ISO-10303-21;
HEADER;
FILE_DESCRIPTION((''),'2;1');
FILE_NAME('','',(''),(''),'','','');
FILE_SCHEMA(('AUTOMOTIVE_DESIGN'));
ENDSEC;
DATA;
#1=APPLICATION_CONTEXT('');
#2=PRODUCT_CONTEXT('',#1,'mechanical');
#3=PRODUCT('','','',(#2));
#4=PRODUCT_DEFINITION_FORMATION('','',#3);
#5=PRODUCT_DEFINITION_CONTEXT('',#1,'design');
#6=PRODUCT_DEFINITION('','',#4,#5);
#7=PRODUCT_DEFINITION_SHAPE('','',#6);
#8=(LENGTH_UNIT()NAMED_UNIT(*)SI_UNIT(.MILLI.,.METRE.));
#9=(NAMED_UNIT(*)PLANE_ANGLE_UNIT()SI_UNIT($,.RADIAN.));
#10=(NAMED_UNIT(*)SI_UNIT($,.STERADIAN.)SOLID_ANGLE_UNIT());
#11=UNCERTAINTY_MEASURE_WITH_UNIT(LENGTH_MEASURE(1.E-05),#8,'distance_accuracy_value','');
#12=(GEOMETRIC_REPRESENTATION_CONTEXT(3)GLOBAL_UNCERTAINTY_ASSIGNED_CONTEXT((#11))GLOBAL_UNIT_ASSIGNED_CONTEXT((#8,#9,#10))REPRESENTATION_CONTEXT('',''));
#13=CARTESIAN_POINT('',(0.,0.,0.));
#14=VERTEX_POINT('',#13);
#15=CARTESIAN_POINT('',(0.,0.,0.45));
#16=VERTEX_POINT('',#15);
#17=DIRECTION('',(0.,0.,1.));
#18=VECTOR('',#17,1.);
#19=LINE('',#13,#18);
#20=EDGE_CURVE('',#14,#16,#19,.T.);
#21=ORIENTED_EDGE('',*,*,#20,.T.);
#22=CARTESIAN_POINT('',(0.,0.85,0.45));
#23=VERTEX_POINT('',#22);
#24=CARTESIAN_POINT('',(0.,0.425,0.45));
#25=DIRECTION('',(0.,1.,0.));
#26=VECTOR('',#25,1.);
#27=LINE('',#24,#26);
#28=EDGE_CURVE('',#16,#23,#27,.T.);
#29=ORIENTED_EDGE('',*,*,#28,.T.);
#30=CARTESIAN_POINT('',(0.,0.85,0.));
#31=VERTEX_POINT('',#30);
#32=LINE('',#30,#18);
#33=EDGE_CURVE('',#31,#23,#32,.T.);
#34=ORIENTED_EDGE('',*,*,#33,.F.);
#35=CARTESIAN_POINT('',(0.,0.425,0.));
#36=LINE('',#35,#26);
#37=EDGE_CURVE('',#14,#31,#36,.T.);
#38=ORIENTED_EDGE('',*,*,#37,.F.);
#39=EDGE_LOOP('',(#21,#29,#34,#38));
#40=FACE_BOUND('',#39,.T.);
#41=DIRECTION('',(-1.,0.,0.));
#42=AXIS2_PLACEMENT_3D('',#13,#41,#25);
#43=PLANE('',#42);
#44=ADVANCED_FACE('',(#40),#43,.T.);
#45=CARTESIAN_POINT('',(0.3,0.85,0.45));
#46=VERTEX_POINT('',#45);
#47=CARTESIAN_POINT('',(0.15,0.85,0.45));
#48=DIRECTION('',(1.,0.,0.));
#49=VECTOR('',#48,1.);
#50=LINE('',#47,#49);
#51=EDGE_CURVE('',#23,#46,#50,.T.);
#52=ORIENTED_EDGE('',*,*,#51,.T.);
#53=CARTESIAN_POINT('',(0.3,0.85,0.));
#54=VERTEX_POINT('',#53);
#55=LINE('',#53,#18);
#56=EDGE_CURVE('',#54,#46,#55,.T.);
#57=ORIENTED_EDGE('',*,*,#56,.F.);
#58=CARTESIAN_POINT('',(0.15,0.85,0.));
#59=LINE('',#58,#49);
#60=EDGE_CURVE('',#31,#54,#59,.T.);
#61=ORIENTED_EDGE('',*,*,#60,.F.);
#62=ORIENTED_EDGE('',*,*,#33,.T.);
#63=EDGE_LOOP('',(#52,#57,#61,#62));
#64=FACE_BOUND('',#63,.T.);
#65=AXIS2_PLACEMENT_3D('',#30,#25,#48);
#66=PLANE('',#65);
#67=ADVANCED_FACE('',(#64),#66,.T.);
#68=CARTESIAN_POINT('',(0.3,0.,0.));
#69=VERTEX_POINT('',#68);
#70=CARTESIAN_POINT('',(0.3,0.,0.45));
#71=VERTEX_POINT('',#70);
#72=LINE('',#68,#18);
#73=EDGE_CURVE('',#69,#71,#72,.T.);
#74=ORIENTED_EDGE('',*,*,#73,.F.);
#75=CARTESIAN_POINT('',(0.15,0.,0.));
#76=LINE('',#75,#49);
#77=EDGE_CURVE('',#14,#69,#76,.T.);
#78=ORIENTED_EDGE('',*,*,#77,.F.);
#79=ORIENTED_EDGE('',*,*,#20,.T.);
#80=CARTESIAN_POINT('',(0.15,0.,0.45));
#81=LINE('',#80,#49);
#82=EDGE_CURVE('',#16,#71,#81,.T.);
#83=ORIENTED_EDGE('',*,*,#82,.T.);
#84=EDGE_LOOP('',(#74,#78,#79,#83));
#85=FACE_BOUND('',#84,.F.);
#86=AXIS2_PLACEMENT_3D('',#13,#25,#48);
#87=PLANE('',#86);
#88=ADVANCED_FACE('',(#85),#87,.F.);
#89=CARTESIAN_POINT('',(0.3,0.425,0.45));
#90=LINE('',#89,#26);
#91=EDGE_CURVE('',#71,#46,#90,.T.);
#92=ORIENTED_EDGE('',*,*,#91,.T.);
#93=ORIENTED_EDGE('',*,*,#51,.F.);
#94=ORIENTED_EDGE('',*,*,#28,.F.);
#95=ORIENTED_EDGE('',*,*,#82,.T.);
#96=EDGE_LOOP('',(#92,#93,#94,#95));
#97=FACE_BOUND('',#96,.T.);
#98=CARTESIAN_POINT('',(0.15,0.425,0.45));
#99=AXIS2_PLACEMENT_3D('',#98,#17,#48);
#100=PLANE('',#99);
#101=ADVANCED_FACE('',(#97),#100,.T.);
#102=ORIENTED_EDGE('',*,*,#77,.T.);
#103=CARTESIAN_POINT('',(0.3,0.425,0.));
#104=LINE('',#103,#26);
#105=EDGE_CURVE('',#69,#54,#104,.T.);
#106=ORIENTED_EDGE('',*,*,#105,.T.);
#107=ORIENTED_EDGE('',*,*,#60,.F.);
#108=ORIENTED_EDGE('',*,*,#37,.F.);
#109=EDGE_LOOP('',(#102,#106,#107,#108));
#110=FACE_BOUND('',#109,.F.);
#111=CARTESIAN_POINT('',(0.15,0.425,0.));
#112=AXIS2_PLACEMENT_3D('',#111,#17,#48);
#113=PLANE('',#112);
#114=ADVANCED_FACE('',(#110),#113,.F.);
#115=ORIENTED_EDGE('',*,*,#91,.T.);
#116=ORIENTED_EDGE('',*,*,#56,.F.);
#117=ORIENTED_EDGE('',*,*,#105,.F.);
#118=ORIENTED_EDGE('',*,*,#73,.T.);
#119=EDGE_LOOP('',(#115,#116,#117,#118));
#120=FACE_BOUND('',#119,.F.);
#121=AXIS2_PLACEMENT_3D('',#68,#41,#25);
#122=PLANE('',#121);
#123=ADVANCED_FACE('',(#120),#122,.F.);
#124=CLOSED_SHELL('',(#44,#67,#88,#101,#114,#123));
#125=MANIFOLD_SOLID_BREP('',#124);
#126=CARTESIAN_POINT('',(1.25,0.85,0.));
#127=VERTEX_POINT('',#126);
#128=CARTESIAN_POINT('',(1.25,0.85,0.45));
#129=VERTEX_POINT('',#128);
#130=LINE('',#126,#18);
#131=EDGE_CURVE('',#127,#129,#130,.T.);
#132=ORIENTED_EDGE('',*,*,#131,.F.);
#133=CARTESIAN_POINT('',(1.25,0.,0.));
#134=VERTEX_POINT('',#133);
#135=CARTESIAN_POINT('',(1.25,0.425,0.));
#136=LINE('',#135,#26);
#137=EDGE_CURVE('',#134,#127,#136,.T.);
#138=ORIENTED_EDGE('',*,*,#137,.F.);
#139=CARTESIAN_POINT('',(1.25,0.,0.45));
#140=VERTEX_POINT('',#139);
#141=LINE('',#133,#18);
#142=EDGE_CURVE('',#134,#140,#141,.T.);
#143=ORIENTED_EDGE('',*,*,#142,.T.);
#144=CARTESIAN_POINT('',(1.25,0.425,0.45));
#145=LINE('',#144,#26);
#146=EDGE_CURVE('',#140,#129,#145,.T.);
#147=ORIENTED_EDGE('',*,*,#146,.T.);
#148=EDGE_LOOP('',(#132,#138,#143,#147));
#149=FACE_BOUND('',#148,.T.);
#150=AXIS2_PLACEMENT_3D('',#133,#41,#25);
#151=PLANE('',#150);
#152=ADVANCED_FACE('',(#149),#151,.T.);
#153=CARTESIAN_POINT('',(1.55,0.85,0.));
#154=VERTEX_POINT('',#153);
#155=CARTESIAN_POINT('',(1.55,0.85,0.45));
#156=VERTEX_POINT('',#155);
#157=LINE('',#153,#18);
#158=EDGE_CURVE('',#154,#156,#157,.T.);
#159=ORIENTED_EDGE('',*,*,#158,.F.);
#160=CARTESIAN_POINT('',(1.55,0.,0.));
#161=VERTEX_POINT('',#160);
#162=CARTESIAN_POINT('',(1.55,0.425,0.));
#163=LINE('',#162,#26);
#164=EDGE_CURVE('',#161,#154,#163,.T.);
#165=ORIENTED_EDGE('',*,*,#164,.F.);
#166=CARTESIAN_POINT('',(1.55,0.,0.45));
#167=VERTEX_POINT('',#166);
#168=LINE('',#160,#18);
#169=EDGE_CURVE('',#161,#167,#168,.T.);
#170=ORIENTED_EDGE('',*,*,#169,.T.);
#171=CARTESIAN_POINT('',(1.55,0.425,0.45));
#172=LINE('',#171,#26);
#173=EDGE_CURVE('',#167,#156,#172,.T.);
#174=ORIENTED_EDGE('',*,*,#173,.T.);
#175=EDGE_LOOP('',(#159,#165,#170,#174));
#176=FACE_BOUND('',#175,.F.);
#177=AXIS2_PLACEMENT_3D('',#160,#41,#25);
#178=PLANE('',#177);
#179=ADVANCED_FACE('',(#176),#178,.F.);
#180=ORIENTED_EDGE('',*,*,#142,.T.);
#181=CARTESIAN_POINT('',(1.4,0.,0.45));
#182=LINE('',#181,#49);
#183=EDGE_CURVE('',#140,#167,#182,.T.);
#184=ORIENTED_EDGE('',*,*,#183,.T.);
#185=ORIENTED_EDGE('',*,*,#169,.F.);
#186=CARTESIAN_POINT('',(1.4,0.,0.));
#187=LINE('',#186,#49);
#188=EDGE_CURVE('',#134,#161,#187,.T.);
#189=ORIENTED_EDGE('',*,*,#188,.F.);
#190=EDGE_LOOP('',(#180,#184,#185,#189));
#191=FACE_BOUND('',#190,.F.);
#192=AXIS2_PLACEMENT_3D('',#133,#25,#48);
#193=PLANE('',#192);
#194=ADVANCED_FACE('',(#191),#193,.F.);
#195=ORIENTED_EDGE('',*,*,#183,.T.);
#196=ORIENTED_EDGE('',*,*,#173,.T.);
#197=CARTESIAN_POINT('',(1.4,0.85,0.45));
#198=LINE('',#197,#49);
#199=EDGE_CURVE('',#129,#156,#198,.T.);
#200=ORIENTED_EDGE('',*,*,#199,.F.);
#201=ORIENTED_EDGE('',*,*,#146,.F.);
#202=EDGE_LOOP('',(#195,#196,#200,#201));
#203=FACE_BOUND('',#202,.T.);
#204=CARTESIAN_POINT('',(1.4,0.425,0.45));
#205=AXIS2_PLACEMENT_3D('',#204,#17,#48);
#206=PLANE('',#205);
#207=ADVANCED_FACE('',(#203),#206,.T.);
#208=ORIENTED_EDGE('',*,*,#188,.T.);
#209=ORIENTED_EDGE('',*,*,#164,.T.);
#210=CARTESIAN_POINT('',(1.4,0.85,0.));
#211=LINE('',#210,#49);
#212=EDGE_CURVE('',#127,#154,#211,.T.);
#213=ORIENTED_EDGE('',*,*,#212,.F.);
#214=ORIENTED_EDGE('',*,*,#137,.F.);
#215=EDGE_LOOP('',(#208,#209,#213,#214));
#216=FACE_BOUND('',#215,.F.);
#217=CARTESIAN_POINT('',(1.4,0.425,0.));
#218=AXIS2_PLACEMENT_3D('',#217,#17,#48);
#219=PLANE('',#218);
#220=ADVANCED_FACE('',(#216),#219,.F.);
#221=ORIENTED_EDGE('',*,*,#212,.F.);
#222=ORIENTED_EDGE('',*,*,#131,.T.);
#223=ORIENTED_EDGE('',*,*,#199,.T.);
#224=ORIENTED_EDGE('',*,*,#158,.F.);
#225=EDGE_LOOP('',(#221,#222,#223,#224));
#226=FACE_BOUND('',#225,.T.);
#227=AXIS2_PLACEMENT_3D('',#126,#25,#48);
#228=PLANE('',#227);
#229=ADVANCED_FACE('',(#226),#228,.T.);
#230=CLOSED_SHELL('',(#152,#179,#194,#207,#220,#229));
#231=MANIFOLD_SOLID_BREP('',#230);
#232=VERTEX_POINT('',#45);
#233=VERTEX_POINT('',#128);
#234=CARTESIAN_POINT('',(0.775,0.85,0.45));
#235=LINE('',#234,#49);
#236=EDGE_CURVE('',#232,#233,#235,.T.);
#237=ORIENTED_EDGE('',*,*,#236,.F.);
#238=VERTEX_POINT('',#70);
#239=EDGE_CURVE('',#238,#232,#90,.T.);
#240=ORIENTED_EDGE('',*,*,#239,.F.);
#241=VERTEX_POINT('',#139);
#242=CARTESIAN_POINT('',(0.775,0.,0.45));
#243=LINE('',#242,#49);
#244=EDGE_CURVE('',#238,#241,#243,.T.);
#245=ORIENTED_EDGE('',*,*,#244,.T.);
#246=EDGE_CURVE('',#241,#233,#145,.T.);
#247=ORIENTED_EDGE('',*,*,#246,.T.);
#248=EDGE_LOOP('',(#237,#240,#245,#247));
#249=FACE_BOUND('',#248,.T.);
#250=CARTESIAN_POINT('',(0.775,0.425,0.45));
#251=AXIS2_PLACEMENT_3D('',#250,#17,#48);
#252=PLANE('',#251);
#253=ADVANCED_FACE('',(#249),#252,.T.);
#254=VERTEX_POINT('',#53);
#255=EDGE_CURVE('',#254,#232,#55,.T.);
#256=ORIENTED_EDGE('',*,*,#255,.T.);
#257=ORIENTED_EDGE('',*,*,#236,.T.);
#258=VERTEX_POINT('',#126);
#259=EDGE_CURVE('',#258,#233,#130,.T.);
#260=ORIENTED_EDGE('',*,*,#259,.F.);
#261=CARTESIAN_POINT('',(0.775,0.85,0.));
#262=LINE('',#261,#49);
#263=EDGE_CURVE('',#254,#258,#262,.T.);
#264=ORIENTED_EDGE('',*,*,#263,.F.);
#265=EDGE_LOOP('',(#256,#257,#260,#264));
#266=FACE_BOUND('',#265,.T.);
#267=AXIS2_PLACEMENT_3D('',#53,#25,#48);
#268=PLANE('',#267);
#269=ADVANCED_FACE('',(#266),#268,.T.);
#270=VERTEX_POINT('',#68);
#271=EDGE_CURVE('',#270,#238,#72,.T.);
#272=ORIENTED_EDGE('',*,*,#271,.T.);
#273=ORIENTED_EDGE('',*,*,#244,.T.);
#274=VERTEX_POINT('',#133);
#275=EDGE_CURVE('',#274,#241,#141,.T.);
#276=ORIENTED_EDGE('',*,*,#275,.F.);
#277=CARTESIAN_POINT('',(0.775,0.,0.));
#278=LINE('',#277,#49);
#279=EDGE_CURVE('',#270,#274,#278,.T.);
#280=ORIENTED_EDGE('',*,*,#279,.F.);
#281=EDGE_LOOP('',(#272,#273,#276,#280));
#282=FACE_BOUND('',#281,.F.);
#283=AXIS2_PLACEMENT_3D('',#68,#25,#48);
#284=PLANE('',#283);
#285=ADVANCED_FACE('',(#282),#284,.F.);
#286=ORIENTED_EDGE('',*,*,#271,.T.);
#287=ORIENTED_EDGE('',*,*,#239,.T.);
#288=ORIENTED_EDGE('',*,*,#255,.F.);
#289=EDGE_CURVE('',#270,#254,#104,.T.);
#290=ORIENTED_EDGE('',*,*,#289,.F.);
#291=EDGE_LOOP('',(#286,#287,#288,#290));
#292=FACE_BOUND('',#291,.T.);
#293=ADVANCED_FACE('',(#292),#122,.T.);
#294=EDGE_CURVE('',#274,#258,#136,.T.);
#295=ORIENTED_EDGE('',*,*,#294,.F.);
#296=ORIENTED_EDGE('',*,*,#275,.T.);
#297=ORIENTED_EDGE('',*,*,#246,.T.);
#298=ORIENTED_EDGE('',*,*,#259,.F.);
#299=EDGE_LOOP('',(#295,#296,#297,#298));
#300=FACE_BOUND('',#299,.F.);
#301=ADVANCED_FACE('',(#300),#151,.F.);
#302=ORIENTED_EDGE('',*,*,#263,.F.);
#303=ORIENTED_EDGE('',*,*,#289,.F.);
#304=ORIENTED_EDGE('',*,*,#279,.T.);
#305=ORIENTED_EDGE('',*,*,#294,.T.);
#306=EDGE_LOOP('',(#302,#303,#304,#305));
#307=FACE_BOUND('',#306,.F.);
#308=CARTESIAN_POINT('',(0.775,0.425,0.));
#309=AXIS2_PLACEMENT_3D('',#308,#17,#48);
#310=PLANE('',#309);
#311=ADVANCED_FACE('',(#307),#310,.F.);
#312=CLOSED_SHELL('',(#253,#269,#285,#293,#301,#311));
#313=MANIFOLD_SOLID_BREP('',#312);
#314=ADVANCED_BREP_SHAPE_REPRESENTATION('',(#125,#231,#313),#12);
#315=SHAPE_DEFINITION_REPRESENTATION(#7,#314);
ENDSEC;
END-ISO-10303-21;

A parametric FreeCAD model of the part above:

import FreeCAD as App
import Part
import Sketcher
from FreeCAD import Vector
Q = App.Units.Quantity

doc = App.newDocument("Part")
body = doc.addObject("PartDesign::Body", "Body")

sketch1 = body.newObject("Sketcher::SketchObject", "Sketch")
sketch1.AttachmentSupport = (doc.getObject("XY_Plane"), [""])
sketch1.MapMode = "FlatFace"
sketch1.addGeometry([
    Part.LineSegment(Vector(0, 0.85, 0), Vector(0, 0, 0)),
    Part.LineSegment(Vector(0, 0, 0), Vector(0.3, 0, 0)),
    Part.LineSegment(Vector(0.3, 0, 0), Vector(0.3, 0.85, 0)),
    Part.LineSegment(Vector(0.3, 0.85, 0), Vector(0, 0.85, 0)),
], False)
sketch1.addConstraint([
    Sketcher.Constraint("Coincident", 0, 2, 1, 1),
    Sketcher.Constraint("Coincident", 1, 2, 2, 1),
    Sketcher.Constraint("Coincident", 2, 2, 3, 1),
    Sketcher.Constraint("Coincident", 3, 2, 0, 1),
    Sketcher.Constraint("Vertical", 0),
    Sketcher.Constraint("Horizontal", 1),
    Sketcher.Constraint("Vertical", 2),
    Sketcher.Constraint("Horizontal", 3),
    Sketcher.Constraint("Coincident", 0, 2, -1, 1),
    Sketcher.Constraint("DistanceX", 1, 1, 1, 2, Q("0.3 mm")),
    Sketcher.Constraint("DistanceY", 0, 2, 0, 1, Q("0.85 mm")),
])
pad1 = body.newObject("PartDesign::Pad", "Pad")
pad1.Profile = sketch1
pad1.Length = 0.45
body2 = doc.addObject("PartDesign::Body", "Body001")

sketch2 = body2.newObject("Sketcher::SketchObject", "Sketch001")
sketch2.AttachmentSupport = (doc.getObject("XY_Plane001"), [""])
sketch2.MapMode = "FlatFace"
sketch2.addGeometry([
    Part.LineSegment(Vector(0.3, 0.8, 0), Vector(0.3, 0, 0)),
    Part.LineSegment(Vector(0.3, 0, 0), Vector(1.2, 0, 0)),
    Part.LineSegment(Vector(1.2, 0, 0), Vector(1.2, 0.8, 0)),
    Part.LineSegment(Vector(1.2, 0.8, 0), Vector(0.3, 0.8, 0)),
], False)
sketch2.addConstraint([
    Sketcher.Constraint("Coincident", 0, 2, 1, 1),
    Sketcher.Constraint("Coincident", 1, 2, 2, 1),
    Sketcher.Constraint("Coincident", 2, 2, 3, 1),
    Sketcher.Constraint("Coincident", 3, 2, 0, 1),
    Sketcher.Constraint("Vertical", 0),
    Sketcher.Constraint("Horizontal", 1),
    Sketcher.Constraint("Vertical", 2),
    Sketcher.Constraint("Horizontal", 3),
    Sketcher.Constraint("PointOnObject", 0, 2, -1),
    Sketcher.Constraint("DistanceX", 1, 1, 1, 2, Q("0.95 mm")),
    Sketcher.Constraint("DistanceY", 0, 2, 0, 1, Q("0.85 mm")),
    Sketcher.Constraint("DistanceX", -1, 1, 0, 2, Q("0.3 mm")),
])
pad2 = body2.newObject("PartDesign::Pad", "Pad001")
pad2.Profile = sketch2
pad2.Length = 0.45
body3 = doc.addObject("PartDesign::Body", "Body002")

sketch3 = body3.newObject("Sketcher::SketchObject", "Sketch002")
sketch3.AttachmentSupport = (doc.getObject("XY_Plane002"), [""])
sketch3.MapMode = "FlatFace"
sketch3.addGeometry([
    Part.LineSegment(Vector(1.25, 0.85, 0), Vector(1.25, 0, 0)),
    Part.LineSegment(Vector(1.25, 0, 0), Vector(1.55, 0, 0)),
    Part.LineSegment(Vector(1.55, 0, 0), Vector(1.55, 0.85, 0)),
    Part.LineSegment(Vector(1.55, 0.85, 0), Vector(1.25, 0.85, 0)),
], False)
sketch3.addConstraint([
    Sketcher.Constraint("Coincident", 0, 2, 1, 1),
    Sketcher.Constraint("Coincident", 1, 2, 2, 1),
    Sketcher.Constraint("Coincident", 2, 2, 3, 1),
    Sketcher.Constraint("Coincident", 3, 2, 0, 1),
    Sketcher.Constraint("Vertical", 0),
    Sketcher.Constraint("Horizontal", 1),
    Sketcher.Constraint("Vertical", 2),
    Sketcher.Constraint("Horizontal", 3),
    Sketcher.Constraint("PointOnObject", 0, 2, -1),
    Sketcher.Constraint("DistanceX", 1, 1, 1, 2, Q("0.3 mm")),
    Sketcher.Constraint("DistanceY", 0, 2, 0, 1, Q("0.85 mm")),
    Sketcher.Constraint("DistanceX", -1, 1, 0, 2, Q("1.25 mm")),
])
pad3 = body3.newObject("PartDesign::Pad", "Pad002")
pad3.Profile = sketch3
pad3.Length = 0.45

doc.recompute()
